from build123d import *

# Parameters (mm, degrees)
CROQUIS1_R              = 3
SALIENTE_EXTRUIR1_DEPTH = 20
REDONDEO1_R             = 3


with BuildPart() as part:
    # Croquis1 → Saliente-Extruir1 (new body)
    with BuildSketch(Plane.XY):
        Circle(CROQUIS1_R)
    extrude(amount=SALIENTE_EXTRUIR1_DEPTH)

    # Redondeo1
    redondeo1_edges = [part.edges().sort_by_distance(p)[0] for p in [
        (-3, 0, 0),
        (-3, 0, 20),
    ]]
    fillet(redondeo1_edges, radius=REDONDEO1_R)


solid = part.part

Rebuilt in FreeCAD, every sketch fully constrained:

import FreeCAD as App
import Part
import Sketcher

V = App.Vector
Q = App.Units.Quantity


def edges_at(feature, points):
    """Names of the edges that pass closest to the given points."""
    edges = feature.Shape.Edges
    near = lambda p: min(range(len(edges)), key=lambda i: edges[i].distToShape(Part.Vertex(*p))[0])
    return sorted({f"Edge{near(p) + 1}" for p in points})

doc = App.newDocument("Part")
params = doc.addObject("Spreadsheet::Sheet", "Params")
for row, (alias, value) in enumerate([
    ("sketch1_diameter", "6 mm"),
    ("pad1_length", "20 mm"),
    ("fillet_radius", "3 mm"),
], start=1):
    params.set(f"A{row}", alias)
    params.set(f"B{row}", "=" + value)
    params.setAlias(f"B{row}", alias)

body = doc.addObject("PartDesign::Body", "Body")

# Sketch on XY plane
sketch1 = doc.addObject("Sketcher::SketchObject", "Sketch")
body.addObject(sketch1)
sketch1.AttachmentSupport = (doc.XY_Plane, [""])
sketch1.MapMode = "FlatFace"
sketch1.addGeometry(Part.Circle(V(0, 0, 0), V(0, 0, 1), 3), False)
sketch1.addConstraint([
    Sketcher.Constraint("Coincident", 0, 3, -1, 1),
    Sketcher.Constraint("Diameter", 0, Q("6 mm")),
])
sketch1.setExpression("Constraints[1]", "Params.sketch1_diameter")
pad1 = doc.addObject("PartDesign::Pad", "Pad")
body.addObject(pad1)
pad1.Profile = sketch1
pad1.setExpression("Length", "Params.pad1_length")
doc.recompute()

fillet = doc.addObject("PartDesign::Fillet", "Fillet")
body.addObject(fillet)
fillet.Base = (pad1, edges_at(pad1, [(-3, 0, 0), (-3, 0, 20)]))
fillet.setExpression("Radius", "Params.fillet_radius")

doc.recompute()
